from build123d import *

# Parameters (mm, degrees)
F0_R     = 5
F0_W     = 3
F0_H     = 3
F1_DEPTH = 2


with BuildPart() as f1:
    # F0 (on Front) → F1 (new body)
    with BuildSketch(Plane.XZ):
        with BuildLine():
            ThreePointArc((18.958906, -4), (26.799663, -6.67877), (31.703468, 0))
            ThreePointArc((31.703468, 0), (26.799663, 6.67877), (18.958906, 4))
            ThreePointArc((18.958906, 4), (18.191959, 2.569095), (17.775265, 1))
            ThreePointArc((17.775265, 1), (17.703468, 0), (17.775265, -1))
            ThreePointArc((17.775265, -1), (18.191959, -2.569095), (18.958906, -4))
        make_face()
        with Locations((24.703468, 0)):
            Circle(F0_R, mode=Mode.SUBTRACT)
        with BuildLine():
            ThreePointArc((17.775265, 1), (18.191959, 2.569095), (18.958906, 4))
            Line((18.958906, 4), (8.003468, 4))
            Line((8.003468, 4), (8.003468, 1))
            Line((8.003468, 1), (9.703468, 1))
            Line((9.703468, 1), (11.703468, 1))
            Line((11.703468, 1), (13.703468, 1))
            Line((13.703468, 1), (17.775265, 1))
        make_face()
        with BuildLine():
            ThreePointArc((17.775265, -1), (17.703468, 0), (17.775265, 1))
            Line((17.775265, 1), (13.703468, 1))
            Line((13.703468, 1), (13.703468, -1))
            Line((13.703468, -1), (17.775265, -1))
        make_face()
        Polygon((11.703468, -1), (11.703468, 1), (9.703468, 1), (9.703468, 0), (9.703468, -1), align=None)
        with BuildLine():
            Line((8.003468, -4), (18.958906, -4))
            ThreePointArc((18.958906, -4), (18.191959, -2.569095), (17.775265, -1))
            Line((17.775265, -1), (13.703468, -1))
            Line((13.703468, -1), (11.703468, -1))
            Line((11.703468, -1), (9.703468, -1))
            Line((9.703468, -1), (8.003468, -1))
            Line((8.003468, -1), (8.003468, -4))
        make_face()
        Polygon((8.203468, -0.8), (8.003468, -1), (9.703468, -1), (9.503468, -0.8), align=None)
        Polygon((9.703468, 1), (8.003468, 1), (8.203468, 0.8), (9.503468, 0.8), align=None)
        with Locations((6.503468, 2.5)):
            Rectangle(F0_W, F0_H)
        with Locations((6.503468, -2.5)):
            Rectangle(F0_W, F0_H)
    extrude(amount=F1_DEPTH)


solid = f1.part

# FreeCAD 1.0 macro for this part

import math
import FreeCAD as App
import Part
import Sketcher

V = App.Vector
Q = App.Units.Quantity

doc = App.newDocument("Part")
body = doc.addObject("PartDesign::Body", "Body")

# Sketch on XZ plane
sketch1 = body.newObject("Sketcher::SketchObject", "Sketch")
sketch1.AttachmentSupport = (doc.getObject("XZ_Plane"), [""])
sketch1.MapMode = "FlatFace"
sketch1.addGeometry([
    Part.ArcOfCircle(Part.Circle(V(24.7, 0, 0), V(0, 0, 1), 7), math.radians(-145), math.radians(0)),  # 0
    Part.ArcOfCircle(Part.Circle(V(24.7, 0, 0), V(0, 0, 1), 7), math.radians(0), math.radians(145)),  # 1
    Part.LineSegment(V(18.96, 4, 0), V(5, 4, 0)),  # 2
    Part.LineSegment(V(5, 4, 0), V(5, 1, 0)),  # 3
    Part.LineSegment(V(5, 1, 0), V(8, 1, 0)),  # 4
    Part.LineSegment(V(8, 1, 0), V(8.2, 0.8, 0)),  # 5
    Part.LineSegment(V(8.2, 0.8, 0), V(9.5, 0.8, 0)),  # 6
    Part.LineSegment(V(9.5, 0.8, 0), V(9.7, 1, 0)),  # 7
    Part.LineSegment(V(9.7, 1, 0), V(9.7, -1, 0)),  # 8
    Part.LineSegment(V(9.7, -1, 0), V(9.5, -0.8, 0)),  # 9
    Part.LineSegment(V(9.5, -0.8, 0), V(8.2, -0.8, 0)),  # 10
    Part.LineSegment(V(8.2, -0.8, 0), V(8, -1, 0)),  # 11
    Part.LineSegment(V(8, -1, 0), V(5, -1, 0)),  # 12
    Part.LineSegment(V(5, -1, 0), V(5, -4, 0)),  # 13
    Part.LineSegment(V(5, -4, 0), V(18.96, -4, 0)),  # 14
    Part.LineSegment(V(11.7, -1, 0), V(11.7, 1, 0)),  # 15
    Part.LineSegment(V(11.7, 1, 0), V(13.7, 1, 0)),  # 16
    Part.LineSegment(V(13.7, 1, 0), V(13.7, -1, 0)),  # 17
    Part.LineSegment(V(13.7, -1, 0), V(11.7, -1, 0)),  # 18
    Part.Circle(V(24.7, 0, 0), V(0, 0, 1), 5),  # 19
], False)
sketch1.addConstraint([
    Sketcher.Constraint("Tangent", 0, 2, 1, 1),
    Sketcher.Constraint("Coincident", 1, 2, 2, 1),
    Sketcher.Constraint("Coincident", 2, 2, 3, 1),
    Sketcher.Constraint("Coincident", 3, 2, 4, 1),
    Sketcher.Constraint("Coincident", 4, 2, 5, 1),
    Sketcher.Constraint("Coincident", 5, 2, 6, 1),
    Sketcher.Constraint("Coincident", 6, 2, 7, 1),
    Sketcher.Constraint("Coincident", 7, 2, 8, 1),
    Sketcher.Constraint("Coincident", 8, 2, 9, 1),
    Sketcher.Constraint("Coincident", 9, 2, 10, 1),
    Sketcher.Constraint("Coincident", 10, 2, 11, 1),
    Sketcher.Constraint("Coincident", 11, 2, 12, 1),
    Sketcher.Constraint("Coincident", 12, 2, 13, 1),
    Sketcher.Constraint("Coincident", 13, 2, 14, 1),
    Sketcher.Constraint("Coincident", 14, 2, 0, 1),
    Sketcher.Constraint("Coincident", 15, 2, 16, 1),
    Sketcher.Constraint("Coincident", 16, 2, 17, 1),
    Sketcher.Constraint("Coincident", 17, 2, 18, 1),
    Sketcher.Constraint("Coincident", 18, 2, 15, 1),
    Sketcher.Constraint("Horizontal", 2),
    Sketcher.Constraint("Vertical", 3),
    Sketcher.Constraint("Horizontal", 4),
    Sketcher.Constraint("Horizontal", 6),
    Sketcher.Constraint("Vertical", 8),
    Sketcher.Constraint("Horizontal", 10),
    Sketcher.Constraint("Horizontal", 12),
    Sketcher.Constraint("Vertical", 13),
    Sketcher.Constraint("Horizontal", 14),
    Sketcher.Constraint("Vertical", 15),
    Sketcher.Constraint("Horizontal", 16),
    Sketcher.Constraint("Vertical", 17),
    Sketcher.Constraint("Horizontal", 18),
    Sketcher.Constraint("Coincident", 19, 3, 0, 3),
    Sketcher.Constraint("Equal", 0, 1),
    Sketcher.Constraint("Symmetric", 6, 2, 9, 2, -1),
    Sketcher.Constraint("Symmetric", 4, 2, 11, 2, -1),
    Sketcher.Constraint("Symmetric", 2, 2, 13, 2, -1),
    Sketcher.Constraint("PointOnObject", 0, 3, -1),
    Sketcher.Constraint("PointOnObject", 0, 2, -1),
    Sketcher.Constraint("Perpendicular", 5, 7),
    Sketcher.Constraint("Perpendicular", 7, 9),
    Sketcher.Constraint("Perpendicular", 9, 11),
    Sketcher.Constraint("Horizontal", 4, 2, 7, 2),
    Sketcher.Constraint("Horizontal", 8, 2, 11, 2),
    Sketcher.Constraint("Horizontal", 7, 2, 15, 2),
    Sketcher.Constraint("Horizontal", 12, 2, 17, 2),
    Sketcher.Constraint("Equal", 12, 3),
    Sketcher.Constraint("Equal", 18, 8),
    Sketcher.Constraint("Diameter", 19, Q("10 mm")),
    Sketcher.Constraint("Radius", 0, Q("7 mm")),
    Sketcher.Constraint("DistanceX", 4, 1, 4, 2, Q("3 mm")),
    Sketcher.Constraint("DistanceX", 16, 1, 16, 2, Q("2 mm")),
    Sketcher.Constraint("DistanceX", 6, 1, 6, 2, Q("1.3 mm")),
    Sketcher.Constraint("DistanceX", 7, 2, 15, 2, Q("2 mm")),
    Sketcher.Constraint("DistanceY", -1, 1, 5, 2, Q("0.8 mm")),
    Sketcher.Constraint("DistanceX", 2, 2, 19, 3, Q("19.7 mm")),
    Sketcher.Constraint("DistanceX", -1, 1, 0, 3, Q("24.703468 mm")),
])
pad1 = body.newObject("PartDesign::Pad", "Pad")
pad1.Profile = sketch1
pad1.Length = 2

doc.recompute()
